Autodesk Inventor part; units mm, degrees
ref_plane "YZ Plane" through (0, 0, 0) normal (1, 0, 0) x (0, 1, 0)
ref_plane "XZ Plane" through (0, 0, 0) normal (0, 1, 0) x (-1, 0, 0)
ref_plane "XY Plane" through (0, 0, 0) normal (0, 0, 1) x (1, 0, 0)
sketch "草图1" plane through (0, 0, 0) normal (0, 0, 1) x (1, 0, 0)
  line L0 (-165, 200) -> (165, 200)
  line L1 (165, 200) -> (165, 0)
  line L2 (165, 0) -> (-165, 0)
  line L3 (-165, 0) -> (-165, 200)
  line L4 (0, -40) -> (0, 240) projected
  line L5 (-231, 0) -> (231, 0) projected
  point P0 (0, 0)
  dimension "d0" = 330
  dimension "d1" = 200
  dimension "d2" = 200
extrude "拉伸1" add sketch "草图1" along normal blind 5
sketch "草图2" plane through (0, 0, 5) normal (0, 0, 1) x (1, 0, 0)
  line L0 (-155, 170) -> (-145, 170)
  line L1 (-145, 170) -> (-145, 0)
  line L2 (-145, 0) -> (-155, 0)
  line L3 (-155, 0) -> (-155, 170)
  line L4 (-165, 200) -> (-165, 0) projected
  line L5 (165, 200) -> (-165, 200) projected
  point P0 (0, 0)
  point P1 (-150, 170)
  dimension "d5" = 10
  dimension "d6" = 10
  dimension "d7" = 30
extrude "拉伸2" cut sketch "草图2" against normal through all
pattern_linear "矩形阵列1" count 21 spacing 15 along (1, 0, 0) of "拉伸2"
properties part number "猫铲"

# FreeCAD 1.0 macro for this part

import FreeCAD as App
import Part
import Sketcher
Q = App.Units.Quantity

doc = App.newDocument("Part")
params = doc.addObject("Spreadsheet::Sheet", "Params")
for row, (alias, value) in enumerate([
    ("sketch1_width", "330 mm"),
    ("sketch1_height", "200 mm"),
    ("pad1_length", "5 mm"),
    ("sketch2_width", "10 mm"),
    ("sketch2_height", "170 mm"),
    ("linearpattern_pitch", "15 mm"),
], start=1):
    params.set(f"A{row}", alias)
    params.set(f"B{row}", "=" + value)
    params.setAlias(f"B{row}", alias)

body = doc.addObject("PartDesign::Body", "Body")

# Sketch on XY plane
sketch1 = doc.addObject("Sketcher::SketchObject", "Sketch")
body.addObject(sketch1)
sketch1.AttachmentSupport = (doc.XY_Plane, [""])
sketch1.MapMode = "FlatFace"
sketch1.addGeometry(Part.LineSegment(App.Vector(-165, 200, 0), App.Vector(-165, 0, 0)), False)
sketch1.addGeometry(Part.LineSegment(App.Vector(-165, 0, 0), App.Vector(165, 0, 0)), False)
sketch1.addGeometry(Part.LineSegment(App.Vector(165, 0, 0), App.Vector(165, 200, 0)), False)
sketch1.addGeometry(Part.LineSegment(App.Vector(165, 200, 0), App.Vector(-165, 200, 0)), False)
sketch1.addConstraint(Sketcher.Constraint("Coincident", 0, 2, 1, 1))
sketch1.addConstraint(Sketcher.Constraint("Coincident", 1, 2, 2, 1))
sketch1.addConstraint(Sketcher.Constraint("Coincident", 2, 2, 3, 1))
sketch1.addConstraint(Sketcher.Constraint("Coincident", 3, 2, 0, 1))
sketch1.addConstraint(Sketcher.Constraint("Vertical", 0))
sketch1.addConstraint(Sketcher.Constraint("Horizontal", 1))
sketch1.addConstraint(Sketcher.Constraint("Vertical", 2))
sketch1.addConstraint(Sketcher.Constraint("Horizontal", 3))
sketch1.addConstraint(Sketcher.Constraint("Symmetric", 0, 2, 1, 2, -1, 1))
sketch1.addConstraint(Sketcher.Constraint("DistanceX", 1, 1, 1, 2, Q("330 mm")))
sketch1.addConstraint(Sketcher.Constraint("DistanceY", 0, 2, 0, 1, Q("200 mm")))
sketch1.setExpression("Constraints[9]", "Params.sketch1_width")
sketch1.setExpression("Constraints[10]", "Params.sketch1_height")
pad1 = doc.addObject("PartDesign::Pad", "Pad")
body.addObject(pad1)
pad1.Profile = sketch1
pad1.setExpression("Length", "Params.pad1_length")

# Sketch on XY plane
sketch2 = doc.addObject("Sketcher::SketchObject", "Sketch001")
body.addObject(sketch2)
sketch2.AttachmentSupport = (doc.XY_Plane, [""])
sketch2.MapMode = "FlatFace"
sketch2.AttachmentOffset = App.Placement(App.Vector(0, 0, 5), App.Rotation())
sketch2.addGeometry(Part.LineSegment(App.Vector(-145, 170, 0), App.Vector(-155, 170, 0)), False)
sketch2.addGeometry(Part.LineSegment(App.Vector(-155, 170, 0), App.Vector(-155, 0, 0)), False)
sketch2.addGeometry(Part.LineSegment(App.Vector(-155, 0, 0), App.Vector(-145, 0, 0)), False)
sketch2.addGeometry(Part.LineSegment(App.Vector(-145, 0, 0), App.Vector(-145, 170, 0)), False)
sketch2.addConstraint(Sketcher.Constraint("Coincident", 0, 2, 1, 1))
sketch2.addConstraint(Sketcher.Constraint("Coincident", 1, 2, 2, 1))
sketch2.addConstraint(Sketcher.Constraint("Coincident", 2, 2, 3, 1))
sketch2.addConstraint(Sketcher.Constraint("Coincident", 3, 2, 0, 1))
sketch2.addConstraint(Sketcher.Constraint("Horizontal", 0))
sketch2.addConstraint(Sketcher.Constraint("Vertical", 1))
sketch2.addConstraint(Sketcher.Constraint("Horizontal", 2))
sketch2.addConstraint(Sketcher.Constraint("Vertical", 3))
sketch2.addConstraint(Sketcher.Constraint("PointOnObject", 1, 2, -1))
sketch2.addConstraint(Sketcher.Constraint("DistanceX", 0, 2, 0, 1, Q("10 mm")))
sketch2.addConstraint(Sketcher.Constraint("DistanceY", 1, 2, 1, 1, Q("170 mm")))
sketch2.addConstraint(Sketcher.Constraint("DistanceX", 0, 2, -1, 1, Q("155 mm")))
sketch2.setExpression("Constraints[9]", "Params.sketch2_width")
sketch2.setExpression("Constraints[10]", "Params.sketch2_height")
pocket1 = doc.addObject("PartDesign::Pocket", "Pocket")
body.addObject(pocket1)
pocket1.Profile = sketch2
pocket1.Type = "ThroughAll"
doc.recompute()

linearpattern = doc.addObject("PartDesign::LinearPattern", "LinearPattern")
body.addObject(linearpattern)
linearpattern.Originals = [pocket1]
linearpattern.Direction = (doc.X_Axis, [""])
linearpattern.Mode = "offset"
linearpattern.setExpression("Offset", "Params.linearpattern_pitch")
linearpattern.Occurrences = 21
body.Tip = linearpattern

doc.recompute()
